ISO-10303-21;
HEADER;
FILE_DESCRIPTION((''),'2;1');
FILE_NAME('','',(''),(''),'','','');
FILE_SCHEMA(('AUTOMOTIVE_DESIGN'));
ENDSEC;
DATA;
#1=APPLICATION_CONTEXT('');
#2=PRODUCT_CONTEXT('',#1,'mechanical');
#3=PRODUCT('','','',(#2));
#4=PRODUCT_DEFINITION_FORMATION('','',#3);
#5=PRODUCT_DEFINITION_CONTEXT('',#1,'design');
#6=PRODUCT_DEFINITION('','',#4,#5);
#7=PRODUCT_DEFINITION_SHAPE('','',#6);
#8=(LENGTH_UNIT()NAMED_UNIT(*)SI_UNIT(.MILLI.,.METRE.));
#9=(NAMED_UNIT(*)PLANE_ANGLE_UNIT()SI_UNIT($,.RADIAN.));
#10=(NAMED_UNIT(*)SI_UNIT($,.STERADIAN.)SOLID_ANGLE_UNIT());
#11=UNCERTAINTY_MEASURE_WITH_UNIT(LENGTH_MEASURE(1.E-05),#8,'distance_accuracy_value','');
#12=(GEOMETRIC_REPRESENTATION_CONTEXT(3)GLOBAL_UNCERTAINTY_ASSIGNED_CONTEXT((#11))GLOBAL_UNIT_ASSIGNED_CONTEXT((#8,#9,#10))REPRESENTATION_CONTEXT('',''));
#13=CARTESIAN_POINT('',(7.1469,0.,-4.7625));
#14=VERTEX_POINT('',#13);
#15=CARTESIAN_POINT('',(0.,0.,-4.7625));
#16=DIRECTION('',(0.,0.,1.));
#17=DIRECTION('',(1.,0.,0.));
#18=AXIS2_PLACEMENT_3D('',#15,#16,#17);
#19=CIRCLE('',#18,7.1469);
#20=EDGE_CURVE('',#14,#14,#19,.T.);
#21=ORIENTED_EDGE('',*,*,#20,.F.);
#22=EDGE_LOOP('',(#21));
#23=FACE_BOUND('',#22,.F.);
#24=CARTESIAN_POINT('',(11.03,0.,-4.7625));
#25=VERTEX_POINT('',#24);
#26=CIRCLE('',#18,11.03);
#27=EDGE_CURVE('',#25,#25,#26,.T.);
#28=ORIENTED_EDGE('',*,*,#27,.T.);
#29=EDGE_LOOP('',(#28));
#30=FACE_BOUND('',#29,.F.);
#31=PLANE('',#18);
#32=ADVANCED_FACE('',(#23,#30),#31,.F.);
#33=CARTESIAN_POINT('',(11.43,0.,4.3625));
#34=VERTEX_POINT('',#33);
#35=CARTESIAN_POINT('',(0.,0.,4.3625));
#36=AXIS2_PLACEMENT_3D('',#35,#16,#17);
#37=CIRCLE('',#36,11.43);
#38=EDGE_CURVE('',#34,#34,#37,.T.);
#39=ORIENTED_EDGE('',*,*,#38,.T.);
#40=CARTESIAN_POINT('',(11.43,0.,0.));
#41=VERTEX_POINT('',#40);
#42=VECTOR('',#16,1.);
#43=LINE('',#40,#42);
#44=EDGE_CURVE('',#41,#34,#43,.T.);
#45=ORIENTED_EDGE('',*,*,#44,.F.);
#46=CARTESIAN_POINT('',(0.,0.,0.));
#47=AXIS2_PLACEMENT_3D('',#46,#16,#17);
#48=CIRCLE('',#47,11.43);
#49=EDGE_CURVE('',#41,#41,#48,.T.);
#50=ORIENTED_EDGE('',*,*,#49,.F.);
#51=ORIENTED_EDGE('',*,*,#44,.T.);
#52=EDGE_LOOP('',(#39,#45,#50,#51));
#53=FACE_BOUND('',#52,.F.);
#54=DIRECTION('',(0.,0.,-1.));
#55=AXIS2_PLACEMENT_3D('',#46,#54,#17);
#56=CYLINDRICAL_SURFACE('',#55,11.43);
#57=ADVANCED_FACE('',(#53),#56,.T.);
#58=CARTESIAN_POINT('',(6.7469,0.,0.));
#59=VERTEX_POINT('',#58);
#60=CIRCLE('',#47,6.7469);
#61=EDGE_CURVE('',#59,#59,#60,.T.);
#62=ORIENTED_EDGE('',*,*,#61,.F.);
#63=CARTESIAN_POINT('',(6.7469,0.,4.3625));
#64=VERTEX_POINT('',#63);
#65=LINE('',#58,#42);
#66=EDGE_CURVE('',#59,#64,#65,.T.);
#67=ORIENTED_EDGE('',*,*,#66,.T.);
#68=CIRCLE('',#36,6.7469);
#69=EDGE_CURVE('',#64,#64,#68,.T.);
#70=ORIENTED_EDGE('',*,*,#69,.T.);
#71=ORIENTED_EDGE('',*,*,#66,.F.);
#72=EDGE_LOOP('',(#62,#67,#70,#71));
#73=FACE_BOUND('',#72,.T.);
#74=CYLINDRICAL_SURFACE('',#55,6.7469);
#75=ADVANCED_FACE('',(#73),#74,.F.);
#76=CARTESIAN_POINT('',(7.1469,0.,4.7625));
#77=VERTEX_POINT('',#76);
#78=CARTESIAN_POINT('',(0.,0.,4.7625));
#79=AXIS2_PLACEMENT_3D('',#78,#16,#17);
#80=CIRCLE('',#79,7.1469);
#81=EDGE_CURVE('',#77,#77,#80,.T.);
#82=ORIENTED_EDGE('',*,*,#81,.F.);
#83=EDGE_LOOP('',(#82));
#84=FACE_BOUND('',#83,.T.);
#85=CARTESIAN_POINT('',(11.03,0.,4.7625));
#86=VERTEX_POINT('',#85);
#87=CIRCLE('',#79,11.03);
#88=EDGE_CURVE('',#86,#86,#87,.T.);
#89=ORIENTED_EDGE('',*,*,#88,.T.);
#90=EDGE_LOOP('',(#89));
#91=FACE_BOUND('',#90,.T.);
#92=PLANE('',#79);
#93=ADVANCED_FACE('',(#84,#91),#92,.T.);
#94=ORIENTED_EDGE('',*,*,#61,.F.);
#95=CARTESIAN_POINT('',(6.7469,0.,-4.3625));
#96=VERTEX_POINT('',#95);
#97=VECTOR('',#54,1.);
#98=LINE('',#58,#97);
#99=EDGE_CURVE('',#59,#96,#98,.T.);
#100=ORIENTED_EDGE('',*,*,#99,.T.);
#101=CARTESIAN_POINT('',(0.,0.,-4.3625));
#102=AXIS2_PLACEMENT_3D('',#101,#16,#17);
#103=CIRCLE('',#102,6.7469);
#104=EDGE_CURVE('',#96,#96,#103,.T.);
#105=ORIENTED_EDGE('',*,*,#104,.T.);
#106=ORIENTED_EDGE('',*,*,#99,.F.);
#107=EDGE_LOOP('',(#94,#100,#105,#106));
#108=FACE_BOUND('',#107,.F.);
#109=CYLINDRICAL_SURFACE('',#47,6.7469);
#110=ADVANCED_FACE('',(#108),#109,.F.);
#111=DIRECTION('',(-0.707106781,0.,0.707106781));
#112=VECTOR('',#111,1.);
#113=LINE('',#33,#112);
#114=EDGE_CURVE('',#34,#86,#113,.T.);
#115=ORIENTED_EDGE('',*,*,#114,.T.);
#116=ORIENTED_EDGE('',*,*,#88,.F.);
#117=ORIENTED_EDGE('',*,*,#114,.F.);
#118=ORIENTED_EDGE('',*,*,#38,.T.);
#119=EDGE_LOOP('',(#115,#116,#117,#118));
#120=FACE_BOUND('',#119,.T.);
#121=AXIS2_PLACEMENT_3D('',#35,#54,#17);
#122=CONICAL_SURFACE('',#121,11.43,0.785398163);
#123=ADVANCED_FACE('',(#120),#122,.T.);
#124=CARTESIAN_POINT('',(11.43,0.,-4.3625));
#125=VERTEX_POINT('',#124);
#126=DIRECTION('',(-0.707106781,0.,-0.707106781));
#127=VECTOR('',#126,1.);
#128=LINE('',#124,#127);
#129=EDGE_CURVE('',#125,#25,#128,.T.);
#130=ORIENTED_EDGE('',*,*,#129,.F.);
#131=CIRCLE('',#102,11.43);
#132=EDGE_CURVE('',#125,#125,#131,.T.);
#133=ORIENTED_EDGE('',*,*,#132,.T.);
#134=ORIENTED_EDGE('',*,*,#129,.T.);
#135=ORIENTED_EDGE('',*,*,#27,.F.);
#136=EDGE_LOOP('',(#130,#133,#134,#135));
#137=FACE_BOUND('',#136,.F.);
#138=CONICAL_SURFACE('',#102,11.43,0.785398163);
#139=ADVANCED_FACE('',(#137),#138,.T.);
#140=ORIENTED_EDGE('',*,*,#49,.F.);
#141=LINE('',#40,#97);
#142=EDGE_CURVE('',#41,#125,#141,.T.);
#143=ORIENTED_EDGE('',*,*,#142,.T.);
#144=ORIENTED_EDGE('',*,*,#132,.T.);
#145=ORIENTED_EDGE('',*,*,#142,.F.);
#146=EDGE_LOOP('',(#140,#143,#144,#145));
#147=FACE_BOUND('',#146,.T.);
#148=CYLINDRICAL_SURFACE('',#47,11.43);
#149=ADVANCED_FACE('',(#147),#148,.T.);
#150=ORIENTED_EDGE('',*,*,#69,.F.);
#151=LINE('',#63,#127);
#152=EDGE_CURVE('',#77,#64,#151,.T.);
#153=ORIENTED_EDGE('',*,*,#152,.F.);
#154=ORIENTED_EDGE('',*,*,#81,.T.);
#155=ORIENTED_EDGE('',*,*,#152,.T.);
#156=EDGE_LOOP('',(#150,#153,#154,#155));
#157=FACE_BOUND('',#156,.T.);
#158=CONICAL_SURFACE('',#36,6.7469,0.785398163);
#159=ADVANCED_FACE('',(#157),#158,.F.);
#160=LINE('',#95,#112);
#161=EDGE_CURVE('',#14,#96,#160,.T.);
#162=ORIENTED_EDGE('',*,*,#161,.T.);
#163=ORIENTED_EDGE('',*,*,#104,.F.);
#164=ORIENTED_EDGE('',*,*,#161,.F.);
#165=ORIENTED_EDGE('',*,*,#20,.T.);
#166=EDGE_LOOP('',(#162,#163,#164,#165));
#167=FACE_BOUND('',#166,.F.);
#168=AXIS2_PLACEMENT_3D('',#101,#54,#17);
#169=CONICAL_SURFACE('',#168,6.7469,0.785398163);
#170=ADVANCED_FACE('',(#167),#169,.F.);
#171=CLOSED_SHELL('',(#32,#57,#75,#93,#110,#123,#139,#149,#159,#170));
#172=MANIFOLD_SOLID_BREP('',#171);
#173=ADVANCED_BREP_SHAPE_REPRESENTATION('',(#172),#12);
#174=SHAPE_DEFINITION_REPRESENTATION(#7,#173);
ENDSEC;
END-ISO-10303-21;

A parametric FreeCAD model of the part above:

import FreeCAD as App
import Part
import Sketcher
from FreeCAD import Vector
Q = App.Units.Quantity


def edges_at(feature, points):
    """Names of the edges that pass closest to the given points."""
    edges = feature.Shape.Edges
    near = lambda p: min(range(len(edges)), key=lambda i: edges[i].distToShape(Part.Vertex(*p))[0])
    return sorted({f"Edge{near(p) + 1}" for p in points})

doc = App.newDocument("Part")
body = doc.addObject("PartDesign::Body", "Body")

sketch1 = body.newObject("Sketcher::SketchObject", "Sketch")
sketch1.AttachmentSupport = (doc.getObject("XY_Plane"), [""])
sketch1.MapMode = "FlatFace"
sketch1.addGeometry([
    Part.Circle(Vector(0, 0, 0), Vector(0, 0, 1), 11),
    Part.Circle(Vector(0, 0, 0), Vector(0, 0, 1), 7),
], False)
sketch1.addConstraint([
    Sketcher.Constraint("Coincident", 0, 3, -1, 1),
    Sketcher.Constraint("Coincident", 1, 3, -1, 1),
    Sketcher.Constraint("Diameter", 0, Q("0.9 in")),
    Sketcher.Constraint("Diameter", 1, Q("0.531252 in")),
])
pad1 = body.newObject("PartDesign::Pad", "Pad")
pad1.Profile = sketch1
pad1.Length = Q("0.375 in")
pad1.Midplane = True
doc.recompute()

chamfer = body.newObject("PartDesign::Chamfer", "Chamfer")
chamfer.Base = (pad1, edges_at(pad1, [
    (-11.43, 0, 4.763),
    (-11.43, 0, -4.763),
    (-6.747, 0, 4.763),
    (-6.747, 0, -4.763),
]))
chamfer.Size = 0.4

doc.recompute()
